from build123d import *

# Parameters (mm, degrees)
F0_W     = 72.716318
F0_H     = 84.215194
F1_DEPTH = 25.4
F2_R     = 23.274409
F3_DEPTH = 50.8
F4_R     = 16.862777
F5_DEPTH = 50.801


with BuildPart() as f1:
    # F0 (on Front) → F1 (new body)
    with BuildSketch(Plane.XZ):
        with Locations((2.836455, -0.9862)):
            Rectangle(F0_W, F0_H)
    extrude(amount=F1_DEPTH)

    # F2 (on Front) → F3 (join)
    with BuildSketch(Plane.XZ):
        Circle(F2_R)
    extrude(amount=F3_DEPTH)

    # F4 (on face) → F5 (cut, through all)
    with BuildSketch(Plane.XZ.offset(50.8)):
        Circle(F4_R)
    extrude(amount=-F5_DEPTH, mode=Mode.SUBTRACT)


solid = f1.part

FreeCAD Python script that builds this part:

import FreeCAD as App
import Part
import Sketcher
from FreeCAD import Vector
Q = App.Units.Quantity

doc = App.newDocument("Part")
body = doc.addObject("PartDesign::Body", "Body")

sketch1 = doc.addObject("Sketcher::SketchObject", "Sketch")
body.addObject(sketch1)
sketch1.AttachmentSupport = (doc.XZ_Plane, [""])
sketch1.MapMode = "FlatFace"
sketch1.addGeometry(Part.LineSegment(Vector(-34, 41, 0), Vector(-34, -43, 0)), False)
sketch1.addGeometry(Part.LineSegment(Vector(-34, -43, 0), Vector(39, -43, 0)), False)
sketch1.addGeometry(Part.LineSegment(Vector(39, -43, 0), Vector(39, 41, 0)), False)
sketch1.addGeometry(Part.LineSegment(Vector(39, 41, 0), Vector(-34, 41, 0)), False)
sketch1.addConstraint(Sketcher.Constraint("Coincident", 0, 2, 1, 1))
sketch1.addConstraint(Sketcher.Constraint("Coincident", 1, 2, 2, 1))
sketch1.addConstraint(Sketcher.Constraint("Coincident", 2, 2, 3, 1))
sketch1.addConstraint(Sketcher.Constraint("Coincident", 3, 2, 0, 1))
sketch1.addConstraint(Sketcher.Constraint("Vertical", 0))
sketch1.addConstraint(Sketcher.Constraint("Horizontal", 1))
sketch1.addConstraint(Sketcher.Constraint("Vertical", 2))
sketch1.addConstraint(Sketcher.Constraint("Horizontal", 3))
sketch1.addConstraint(Sketcher.Constraint("DistanceX", 1, 1, 1, 2, Q("72.716318 mm")))
sketch1.addConstraint(Sketcher.Constraint("DistanceY", 0, 2, 0, 1, Q("84.215194 mm")))
sketch1.addConstraint(Sketcher.Constraint("DistanceX", 0, 2, -1, 1, Q("33.521704 mm")))
sketch1.addConstraint(Sketcher.Constraint("DistanceY", 0, 2, -1, 1, Q("43.093797 mm")))
pad1 = doc.addObject("PartDesign::Pad", "Pad")
body.addObject(pad1)
pad1.Profile = sketch1
pad1.Length = Q("1 in")

sketch2 = doc.addObject("Sketcher::SketchObject", "Sketch001")
body.addObject(sketch2)
sketch2.AttachmentSupport = (doc.XZ_Plane, [""])
sketch2.MapMode = "FlatFace"
sketch2.addGeometry(Part.Circle(Vector(0, 0, 0), Vector(0, 0, 1), 23), False)
sketch2.addConstraint(Sketcher.Constraint("Coincident", 0, 3, -1, 1))
sketch2.addConstraint(Sketcher.Constraint("Diameter", 0, Q("46.548818 mm")))
pad2 = doc.addObject("PartDesign::Pad", "Pad001")
body.addObject(pad2)
pad2.Profile = sketch2
pad2.Length = Q("2 in")

sketch3 = doc.addObject("Sketcher::SketchObject", "Sketch002")
body.addObject(sketch3)
sketch3.AttachmentSupport = (doc.XZ_Plane, [""])
sketch3.MapMode = "FlatFace"
sketch3.AttachmentOffset = App.Placement(Vector(0, 0, 2 * 25.4), App.Rotation())
sketch3.addGeometry(Part.Circle(Vector(0, 0, 0), Vector(0, 0, 1), 17), False)
sketch3.addConstraint(Sketcher.Constraint("Coincident", 0, 3, -1, 1))
sketch3.addConstraint(Sketcher.Constraint("Diameter", 0, Q("33.725554 mm")))
pocket1 = doc.addObject("PartDesign::Pocket", "Pocket")
body.addObject(pocket1)
pocket1.Profile = sketch3
pocket1.Type = "ThroughAll"

doc.recompute()
